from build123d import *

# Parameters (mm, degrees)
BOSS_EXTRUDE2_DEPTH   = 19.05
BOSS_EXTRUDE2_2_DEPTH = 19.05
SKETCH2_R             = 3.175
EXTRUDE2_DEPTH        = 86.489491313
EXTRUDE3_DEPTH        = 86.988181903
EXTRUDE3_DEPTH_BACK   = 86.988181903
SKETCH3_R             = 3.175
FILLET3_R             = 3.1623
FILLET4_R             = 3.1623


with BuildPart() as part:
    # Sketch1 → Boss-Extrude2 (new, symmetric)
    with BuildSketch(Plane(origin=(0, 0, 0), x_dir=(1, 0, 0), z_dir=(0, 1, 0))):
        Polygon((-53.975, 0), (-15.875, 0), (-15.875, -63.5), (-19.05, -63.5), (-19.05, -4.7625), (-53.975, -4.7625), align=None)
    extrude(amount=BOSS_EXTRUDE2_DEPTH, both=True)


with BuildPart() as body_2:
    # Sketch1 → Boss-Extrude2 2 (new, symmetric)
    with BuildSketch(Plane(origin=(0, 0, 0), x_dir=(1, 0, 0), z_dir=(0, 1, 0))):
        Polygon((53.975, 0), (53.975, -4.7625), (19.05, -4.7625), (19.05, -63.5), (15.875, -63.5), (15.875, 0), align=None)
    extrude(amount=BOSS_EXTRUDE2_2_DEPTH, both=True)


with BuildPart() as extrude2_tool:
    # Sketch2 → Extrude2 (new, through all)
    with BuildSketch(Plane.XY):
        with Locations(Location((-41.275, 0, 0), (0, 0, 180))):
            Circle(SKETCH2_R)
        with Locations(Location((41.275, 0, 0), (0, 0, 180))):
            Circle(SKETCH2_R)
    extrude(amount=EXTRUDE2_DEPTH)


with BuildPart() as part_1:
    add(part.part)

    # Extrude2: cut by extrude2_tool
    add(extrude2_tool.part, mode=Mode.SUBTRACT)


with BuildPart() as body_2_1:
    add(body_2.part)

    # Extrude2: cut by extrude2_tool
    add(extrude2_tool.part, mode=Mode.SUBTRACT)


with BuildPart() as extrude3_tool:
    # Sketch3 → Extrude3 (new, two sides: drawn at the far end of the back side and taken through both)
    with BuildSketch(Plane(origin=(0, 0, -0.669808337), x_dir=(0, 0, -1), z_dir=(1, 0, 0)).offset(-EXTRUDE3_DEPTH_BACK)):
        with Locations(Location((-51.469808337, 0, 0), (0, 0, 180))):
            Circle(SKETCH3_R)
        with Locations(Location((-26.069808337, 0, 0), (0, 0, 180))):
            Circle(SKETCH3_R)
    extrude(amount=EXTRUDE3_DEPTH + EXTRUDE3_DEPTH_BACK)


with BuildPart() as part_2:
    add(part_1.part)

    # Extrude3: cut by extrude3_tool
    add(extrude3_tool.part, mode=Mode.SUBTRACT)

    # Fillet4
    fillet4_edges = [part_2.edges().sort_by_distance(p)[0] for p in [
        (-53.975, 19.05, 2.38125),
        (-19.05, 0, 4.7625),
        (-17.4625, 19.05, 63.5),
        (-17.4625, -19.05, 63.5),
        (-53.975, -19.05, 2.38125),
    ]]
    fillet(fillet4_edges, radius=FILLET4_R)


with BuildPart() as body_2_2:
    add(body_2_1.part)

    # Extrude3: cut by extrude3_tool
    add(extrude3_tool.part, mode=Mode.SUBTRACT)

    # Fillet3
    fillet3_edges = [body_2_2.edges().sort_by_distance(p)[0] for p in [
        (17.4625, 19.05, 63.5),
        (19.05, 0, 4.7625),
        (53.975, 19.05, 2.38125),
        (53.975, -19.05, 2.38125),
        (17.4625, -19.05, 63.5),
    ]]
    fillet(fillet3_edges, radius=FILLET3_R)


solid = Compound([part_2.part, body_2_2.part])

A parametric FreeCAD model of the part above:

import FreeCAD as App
import Part
import Sketcher
from FreeCAD import Vector
Q = App.Units.Quantity


def edges_at(feature, points):
    """Names of the edges that pass closest to the given points."""
    edges = feature.Shape.Edges
    near = lambda p: min(range(len(edges)), key=lambda i: edges[i].distToShape(Part.Vertex(*p))[0])
    return sorted({f"Edge{near(p) + 1}" for p in points})


def add_polygon(sketch, points):
    """Adds a closed chain of lines whose ends are joined by coincident constraints."""
    first, n = sketch.GeometryCount, len(points)
    for a, b in zip(points, points[1:] + points[:1]):
        sketch.addGeometry(Part.LineSegment(App.Vector(*a, 0), App.Vector(*b, 0)), False)
    for i in range(n):
        sketch.addConstraint(Sketcher.Constraint("Coincident", first + i, 2, first + (i + 1) % n, 1))

doc = App.newDocument("Part")
body = doc.addObject("PartDesign::Body", "Body")

# Sketch on XZ plane
sketch1 = body.newObject("Sketcher::SketchObject", "Sketch")
sketch1.AttachmentSupport = (doc.getObject("XZ_Plane"), [""])
sketch1.MapMode = "FlatFace"
add_polygon(sketch1, [(-15.9, 0), (-54, 0), (-54, 4.8), (-19.1, 4.8), (-19.1, 63.5), (-15.9, 63.5)])  # lines 0-5
sketch1.addConstraint([
    Sketcher.Constraint("Horizontal", 0),
    Sketcher.Constraint("Vertical", 1),
    Sketcher.Constraint("Horizontal", 2),
    Sketcher.Constraint("Vertical", 3),
    Sketcher.Constraint("Horizontal", 4),
    Sketcher.Constraint("Vertical", 5),
    Sketcher.Constraint("PointOnObject", 0, 2, -1),
    Sketcher.Constraint("DistanceX", 0, 2, 0, 1, Q("1.5 in")),
    Sketcher.Constraint("DistanceY", 5, 2, 5, 1, Q("2.5 in")),
    Sketcher.Constraint("DistanceX", 2, 1, 2, 2, Q("1.375 in")),
    Sketcher.Constraint("DistanceY", 1, 1, 1, 2, Q("0.1875 in")),
    Sketcher.Constraint("DistanceX", 2, 2, -1, 1, Q("0.75 in")),
])
pad1 = body.newObject("PartDesign::Pad", "Pad")
pad1.Profile = sketch1
pad1.Length = Q("1.5 in")
pad1.Midplane = True
body2 = doc.addObject("PartDesign::Body", "Body001")

# Sketch on XZ plane
sketch2 = body2.newObject("Sketcher::SketchObject", "Sketch001")
sketch2.AttachmentSupport = (doc.getObject("XZ_Plane001"), [""])
sketch2.MapMode = "FlatFace"
add_polygon(sketch2, [(54, 4.8), (54, 0), (15.9, 0), (15.9, 63.5), (19.1, 63.5), (19.1, 4.8)])  # lines 0-5
sketch2.addConstraint([
    Sketcher.Constraint("Vertical", 0),
    Sketcher.Constraint("Horizontal", 1),
    Sketcher.Constraint("Vertical", 2),
    Sketcher.Constraint("Horizontal", 3),
    Sketcher.Constraint("Vertical", 4),
    Sketcher.Constraint("Horizontal", 5),
    Sketcher.Constraint("PointOnObject", 0, 2, -1),
    Sketcher.Constraint("DistanceX", 1, 2, 1, 1, Q("1.5 in")),
    Sketcher.Constraint("DistanceY", 2, 1, 2, 2, Q("2.5 in")),
    Sketcher.Constraint("DistanceX", 3, 1, 3, 2, Q("0.125 in")),
    Sketcher.Constraint("DistanceY", 0, 2, 0, 1, Q("0.1875 in")),
    Sketcher.Constraint("DistanceX", -1, 1, 3, 2, Q("0.75 in")),
])
pad2 = body2.newObject("PartDesign::Pad", "Pad001")
pad2.Profile = sketch2
pad2.Length = Q("1.5 in")
pad2.Midplane = True
body3 = doc.addObject("PartDesign::Body", "Body002")
body3.AllowCompound = True

# Sketch on XY plane
sketch3 = body3.newObject("Sketcher::SketchObject", "Sketch002")
sketch3.AttachmentSupport = (doc.getObject("XY_Plane002"), [""])
sketch3.MapMode = "FlatFace"
sketch3.addGeometry([
    Part.Circle(Vector(-41.3, 0, 0), Vector(0, 0, 1), 3.2),
    Part.Circle(Vector(41.3, 0, 0), Vector(0, 0, 1), 3.2),
], False)
sketch3.addConstraint([
    Sketcher.Constraint("Equal", 0, 1),
    Sketcher.Constraint("Symmetric", 0, 3, 1, 3, -1, 1),
    Sketcher.Constraint("PointOnObject", 0, 3, -1),
    Sketcher.Constraint("Diameter", 0, Q("0.25 in")),
    Sketcher.Constraint("DistanceX", 0, 3, 1, 3, Q("3.25 in")),
])
pad3 = body3.newObject("PartDesign::Pad", "Pad002")
pad3.Profile = sketch3
pad3.Length = 86.489491
doc.recompute()

body4 = doc.addObject("PartDesign::Body", "Body003")
body4.BaseFeature = body3
boolean = body.newObject("PartDesign::Boolean", "Boolean")
boolean.Type = "Cut"
boolean.addObjects([body4])
doc.recompute()

boolean2 = body2.newObject("PartDesign::Boolean", "Boolean001")
boolean2.Type = "Cut"
boolean2.addObjects([body3])
body5 = doc.addObject("PartDesign::Body", "Body004")
body5.AllowCompound = True

# Sketch on YZ plane
sketch4 = body5.newObject("Sketcher::SketchObject", "Sketch003")
sketch4.AttachmentSupport = (doc.getObject("YZ_Plane004"), [""])
sketch4.MapMode = "FlatFace"
sketch4.addGeometry([
    Part.Circle(Vector(0, 50.8, 0), Vector(0, 0, 1), 3.2),
    Part.Circle(Vector(0, 25.4, 0), Vector(0, 0, 1), 3.2),
], False)
sketch4.addConstraint([
    Sketcher.Constraint("Equal", 0, 1),
    Sketcher.Constraint("PointOnObject", 0, 3, -2),
    Sketcher.Constraint("PointOnObject", 1, 3, -2),
    Sketcher.Constraint("Diameter", 0, Q("0.25 in")),
    Sketcher.Constraint("DistanceY", -1, 1, 0, 3, Q("2 in")),
    Sketcher.Constraint("DistanceY", -1, 1, 1, 3, Q("1 in")),
])
pad4 = body5.newObject("PartDesign::Pad", "Pad003")
pad4.Profile = sketch4
pad4.Type = "TwoLengths"
pad4.Length = 86.988182
pad4.Length2 = 86.988182
doc.recompute()

body6 = doc.addObject("PartDesign::Body", "Body005")
body6.BaseFeature = body5
boolean3 = body.newObject("PartDesign::Boolean", "Boolean002")
boolean3.Type = "Cut"
boolean3.addObjects([body6])
doc.recompute()

fillet = body.newObject("PartDesign::Fillet", "Fillet")
fillet.Base = (boolean3, edges_at(boolean3, [
    (-53.975, 19.05, 2.381),
    (-19.05, 0, 4.763),
    (-17.462, 19.05, 63.5),
    (-17.462, -19.05, 63.5),
    (-53.975, -19.05, 2.381),
]))
fillet.Radius = Q("0.1245 in")
doc.recompute()

boolean4 = body2.newObject("PartDesign::Boolean", "Boolean003")
boolean4.Type = "Cut"
boolean4.addObjects([body5])
doc.recompute()

fillet2 = body2.newObject("PartDesign::Fillet", "Fillet001")
fillet2.Base = (boolean4, edges_at(boolean4, [
    (17.462, 19.05, 63.5),
    (19.05, 0, 4.763),
    (53.975, 19.05, 2.381),
    (53.975, -19.05, 2.381),
    (17.462, -19.05, 63.5),
]))
fillet2.Radius = Q("0.1245 in")

doc.recompute()
